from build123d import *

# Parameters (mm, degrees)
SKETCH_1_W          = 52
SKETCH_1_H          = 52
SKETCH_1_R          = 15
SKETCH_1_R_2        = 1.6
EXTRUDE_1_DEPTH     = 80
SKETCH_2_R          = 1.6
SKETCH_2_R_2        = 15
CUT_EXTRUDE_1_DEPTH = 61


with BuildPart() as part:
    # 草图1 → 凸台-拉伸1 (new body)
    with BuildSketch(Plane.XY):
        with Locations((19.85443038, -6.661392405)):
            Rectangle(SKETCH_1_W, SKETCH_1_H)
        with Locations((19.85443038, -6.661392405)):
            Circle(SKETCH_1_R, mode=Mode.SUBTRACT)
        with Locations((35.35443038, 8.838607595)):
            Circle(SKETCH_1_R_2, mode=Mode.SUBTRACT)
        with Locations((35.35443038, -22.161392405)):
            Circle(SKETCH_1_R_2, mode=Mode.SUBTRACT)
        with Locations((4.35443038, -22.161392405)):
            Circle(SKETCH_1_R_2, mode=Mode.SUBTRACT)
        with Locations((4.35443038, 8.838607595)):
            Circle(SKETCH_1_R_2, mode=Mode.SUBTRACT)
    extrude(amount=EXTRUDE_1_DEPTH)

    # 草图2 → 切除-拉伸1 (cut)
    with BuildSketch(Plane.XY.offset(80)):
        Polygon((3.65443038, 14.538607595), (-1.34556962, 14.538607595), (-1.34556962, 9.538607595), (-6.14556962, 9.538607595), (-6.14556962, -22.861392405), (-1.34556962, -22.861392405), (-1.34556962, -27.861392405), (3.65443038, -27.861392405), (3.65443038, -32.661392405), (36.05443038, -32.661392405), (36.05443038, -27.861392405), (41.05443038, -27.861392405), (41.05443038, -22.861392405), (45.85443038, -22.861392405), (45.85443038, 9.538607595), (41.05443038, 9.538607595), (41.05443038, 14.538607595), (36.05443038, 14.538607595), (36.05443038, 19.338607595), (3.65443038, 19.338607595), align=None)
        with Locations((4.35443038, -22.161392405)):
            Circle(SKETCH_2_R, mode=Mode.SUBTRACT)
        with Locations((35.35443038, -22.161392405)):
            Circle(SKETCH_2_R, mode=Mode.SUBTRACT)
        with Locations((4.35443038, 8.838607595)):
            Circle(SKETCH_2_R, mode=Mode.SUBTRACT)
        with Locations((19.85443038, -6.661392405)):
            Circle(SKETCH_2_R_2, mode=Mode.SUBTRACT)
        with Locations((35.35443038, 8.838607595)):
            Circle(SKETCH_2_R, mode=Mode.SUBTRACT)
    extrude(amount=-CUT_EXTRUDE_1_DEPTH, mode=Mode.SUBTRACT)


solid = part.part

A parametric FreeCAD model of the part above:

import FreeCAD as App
import Part
import Sketcher
from FreeCAD import Vector
Q = App.Units.Quantity

doc = App.newDocument("Part")
body = doc.addObject("PartDesign::Body", "Body")

# Sketch on XY plane
sketch1 = doc.addObject("Sketcher::SketchObject", "Sketch")
body.addObject(sketch1)
sketch1.AttachmentSupport = (doc.XY_Plane, [""])
sketch1.MapMode = "FlatFace"
sketch1.addGeometry([
    Part.LineSegment(Vector(-6.1, 19.3, 0), Vector(-6.1, -32.7, 0)),  # 0
    Part.LineSegment(Vector(-6.1, -32.7, 0), Vector(45.9, -32.7, 0)),  # 1
    Part.LineSegment(Vector(45.9, -32.7, 0), Vector(45.9, 19.3, 0)),  # 2
    Part.LineSegment(Vector(45.9, 19.3, 0), Vector(-6.1, 19.3, 0)),  # 3
    Part.Circle(Vector(4.4, -22.2, 0), Vector(0, 0, 1), 1.6),  # 4
    Part.Circle(Vector(35.4, -22.2, 0), Vector(0, 0, 1), 1.6),  # 5
    Part.Circle(Vector(4.4, 8.8, 0), Vector(0, 0, 1), 1.6),  # 6
    Part.Circle(Vector(19.9, -6.7, 0), Vector(0, 0, 1), 15),  # 7
    Part.Circle(Vector(35.4, 8.8, 0), Vector(0, 0, 1), 1.6),  # 8
], False)
sketch1.addConstraint([
    Sketcher.Constraint("Coincident", 0, 2, 1, 1),
    Sketcher.Constraint("Coincident", 1, 2, 2, 1),
    Sketcher.Constraint("Coincident", 2, 2, 3, 1),
    Sketcher.Constraint("Coincident", 3, 2, 0, 1),
    Sketcher.Constraint("Vertical", 0),
    Sketcher.Constraint("Horizontal", 1),
    Sketcher.Constraint("Vertical", 2),
    Sketcher.Constraint("Horizontal", 3),
    Sketcher.Constraint("Equal", 4, 5),
    Sketcher.Constraint("Equal", 5, 6),
    Sketcher.Constraint("Equal", 6, 8),
    Sketcher.Constraint("Horizontal", 4, 3, 5, 3),
    Sketcher.Constraint("Horizontal", 6, 3, 8, 3),
    Sketcher.Constraint("Vertical", 4, 3, 6, 3),
    Sketcher.Constraint("Vertical", 5, 3, 8, 3),
    Sketcher.Constraint("Equal", 3, 0),
    Sketcher.Constraint("Diameter", 7, Q("30 mm")),
    Sketcher.Constraint("Diameter", 4, Q("3.2 mm")),
    Sketcher.Constraint("DistanceX", 1, 1, 1, 2, Q("52 mm")),
    Sketcher.Constraint("DistanceX", 4, 3, 5, 3, Q("31 mm")),
    Sketcher.Constraint("DistanceY", 4, 3, 6, 3, Q("31 mm")),
    Sketcher.Constraint("DistanceX", 0, 2, 7, 3, Q("26 mm")),
    Sketcher.Constraint("DistanceY", 0, 2, 7, 3, Q("26 mm")),
    Sketcher.Constraint("DistanceX", 7, 3, 5, 3, Q("15.5 mm")),
    Sketcher.Constraint("DistanceY", 5, 3, 7, 3, Q("15.5 mm")),
    Sketcher.Constraint("DistanceX", -1, 1, 4, 3, Q("4.35443 mm")),
    Sketcher.Constraint("DistanceY", 4, 3, -1, 1, Q("22.161392 mm")),
])
pad1 = doc.addObject("PartDesign::Pad", "Pad")
body.addObject(pad1)
pad1.Profile = sketch1
pad1.Length = 80

# Sketch on XY plane
sketch2 = doc.addObject("Sketcher::SketchObject", "Sketch001")
body.addObject(sketch2)
sketch2.AttachmentSupport = (doc.XY_Plane, [""])
sketch2.MapMode = "FlatFace"
sketch2.AttachmentOffset = App.Placement(Vector(0, 0, 80), App.Rotation())
sketch2.addGeometry([
    Part.LineSegment(Vector(3.7, 14.5, 0), Vector(-1.3, 14.5, 0)),  # 0
    Part.LineSegment(Vector(-1.3, 14.5, 0), Vector(-1.3, 9.5, 0)),  # 1
    Part.LineSegment(Vector(-1.3, 9.5, 0), Vector(-6.1, 9.5, 0)),  # 2
    Part.LineSegment(Vector(-6.1, 9.5, 0), Vector(-6.1, -22.9, 0)),  # 3
    Part.LineSegment(Vector(-6.1, -22.9, 0), Vector(-1.3, -22.9, 0)),  # 4
    Part.LineSegment(Vector(-1.3, -22.9, 0), Vector(-1.3, -27.9, 0)),  # 5
    Part.LineSegment(Vector(-1.3, -27.9, 0), Vector(3.7, -27.9, 0)),  # 6
    Part.LineSegment(Vector(3.7, -27.9, 0), Vector(3.7, -32.7, 0)),  # 7
    Part.LineSegment(Vector(3.7, -32.7, 0), Vector(36.1, -32.7, 0)),  # 8
    Part.LineSegment(Vector(36.1, -32.7, 0), Vector(36.1, -27.9, 0)),  # 9
    Part.LineSegment(Vector(36.1, -27.9, 0), Vector(41.1, -27.9, 0)),  # 10
    Part.LineSegment(Vector(41.1, -27.9, 0), Vector(41.1, -22.9, 0)),  # 11
    Part.LineSegment(Vector(41.1, -22.9, 0), Vector(45.9, -22.9, 0)),  # 12
    Part.LineSegment(Vector(45.9, -22.9, 0), Vector(45.9, 9.5, 0)),  # 13
    Part.LineSegment(Vector(45.9, 9.5, 0), Vector(41.1, 9.5, 0)),  # 14
    Part.LineSegment(Vector(41.1, 9.5, 0), Vector(41.1, 14.5, 0)),  # 15
    Part.LineSegment(Vector(41.1, 14.5, 0), Vector(36.1, 14.5, 0)),  # 16
    Part.LineSegment(Vector(36.1, 14.5, 0), Vector(36.1, 19.3, 0)),  # 17
    Part.LineSegment(Vector(36.1, 19.3, 0), Vector(3.7, 19.3, 0)),  # 18
    Part.LineSegment(Vector(3.7, 19.3, 0), Vector(3.7, 14.5, 0)),  # 19
    Part.Circle(Vector(4.4, -22.2, 0), Vector(0, 0, 1), 1.6),  # 20
    Part.Circle(Vector(35.4, -22.2, 0), Vector(0, 0, 1), 1.6),  # 21
    Part.Circle(Vector(4.4, 8.8, 0), Vector(0, 0, 1), 1.6),  # 22
    Part.Circle(Vector(19.9, -6.7, 0), Vector(0, 0, 1), 15),  # 23
    Part.Circle(Vector(35.4, 8.8, 0), Vector(0, 0, 1), 1.6),  # 24
], False)
sketch2.addConstraint([
    Sketcher.Constraint("Coincident", 0, 2, 1, 1),
    Sketcher.Constraint("Coincident", 1, 2, 2, 1),
    Sketcher.Constraint("Coincident", 2, 2, 3, 1),
    Sketcher.Constraint("Coincident", 3, 2, 4, 1),
    Sketcher.Constraint("Coincident", 4, 2, 5, 1),
    Sketcher.Constraint("Coincident", 5, 2, 6, 1),
    Sketcher.Constraint("Coincident", 6, 2, 7, 1),
    Sketcher.Constraint("Coincident", 7, 2, 8, 1),
    Sketcher.Constraint("Coincident", 8, 2, 9, 1),
    Sketcher.Constraint("Coincident", 9, 2, 10, 1),
    Sketcher.Constraint("Coincident", 10, 2, 11, 1),
    Sketcher.Constraint("Coincident", 11, 2, 12, 1),
    Sketcher.Constraint("Coincident", 12, 2, 13, 1),
    Sketcher.Constraint("Coincident", 13, 2, 14, 1),
    Sketcher.Constraint("Coincident", 14, 2, 15, 1),
    Sketcher.Constraint("Coincident", 15, 2, 16, 1),
    Sketcher.Constraint("Coincident", 16, 2, 17, 1),
    Sketcher.Constraint("Coincident", 17, 2, 18, 1),
    Sketcher.Constraint("Coincident", 18, 2, 19, 1),
    Sketcher.Constraint("Coincident", 19, 2, 0, 1),
    Sketcher.Constraint("Horizontal", 0),
    Sketcher.Constraint("Vertical", 1),
    Sketcher.Constraint("Horizontal", 2),
    Sketcher.Constraint("Vertical", 3),
    Sketcher.Constraint("Horizontal", 4),
    Sketcher.Constraint("Vertical", 5),
    Sketcher.Constraint("Horizontal", 6),
    Sketcher.Constraint("Vertical", 7),
    Sketcher.Constraint("Horizontal", 8),
    Sketcher.Constraint("Vertical", 9),
    Sketcher.Constraint("Horizontal", 10),
    Sketcher.Constraint("Vertical", 11),
    Sketcher.Constraint("Horizontal", 12),
    Sketcher.Constraint("Vertical", 13),
    Sketcher.Constraint("Horizontal", 14),
    Sketcher.Constraint("Vertical", 15),
    Sketcher.Constraint("Horizontal", 16),
    Sketcher.Constraint("Vertical", 17),
    Sketcher.Constraint("Horizontal", 18),
    Sketcher.Constraint("Vertical", 19),
    Sketcher.Constraint("Equal", 20, 21),
    Sketcher.Constraint("Equal", 21, 22),
    Sketcher.Constraint("Equal", 22, 24),
    Sketcher.Constraint("Horizontal", 20, 3, 21, 3),
    Sketcher.Constraint("Horizontal", 22, 3, 24, 3),
    Sketcher.Constraint("Horizontal", 6, 2, 9, 2),
    Sketcher.Constraint("Horizontal", 4, 2, 11, 2),
    Sketcher.Constraint("Horizontal", 2, 2, 13, 2),
    Sketcher.Constraint("Horizontal", 0, 2, 15, 2),
    Sketcher.Constraint("Vertical", 20, 3, 22, 3),
    Sketcher.Constraint("Vertical", 21, 3, 24, 3),
    Sketcher.Constraint("Vertical", 1, 2, 4, 2),
    Sketcher.Constraint("Vertical", 11, 2, 14, 2),
    Sketcher.Constraint("Vertical", 9, 2, 16, 2),
    Sketcher.Constraint("Vertical", 7, 2, 18, 2),
    Sketcher.Constraint("Equal", 6, 10),
    Sketcher.Constraint("Equal", 4, 12),
    Sketcher.Constraint("Equal", 16, 1),
    Sketcher.Constraint("Equal", 18, 3),
    Sketcher.Constraint("Equal", 1, 5),
    Sketcher.Constraint("Equal", 14, 7),
    Sketcher.Constraint("Equal", 9, 17),
    Sketcher.Constraint("Diameter", 23, Q("30 mm")),
    Sketcher.Constraint("Diameter", 20, Q("3.2 mm")),
    Sketcher.Constraint("DistanceX", 0, 2, 0, 1, Q("5 mm")),
    Sketcher.Constraint("DistanceX", 2, 2, 2, 1, Q("4.8 mm")),
    Sketcher.Constraint("DistanceX", 8, 1, 8, 2, Q("32.4 mm")),
    Sketcher.Constraint("DistanceX", 20, 3, 21, 3, Q("31 mm")),
    Sketcher.Constraint("DistanceY", 20, 3, 22, 3, Q("31 mm")),
    Sketcher.Constraint("DistanceX", 2, 2, 23, 3, Q("26 mm")),
    Sketcher.Constraint("DistanceY", 8, 2, 23, 3, Q("26 mm")),
    Sketcher.Constraint("DistanceX", 23, 3, 21, 3, Q("15.5 mm")),
    Sketcher.Constraint("DistanceY", 21, 3, 23, 3, Q("15.5 mm")),
    Sketcher.Constraint("DistanceX", -1, 1, 20, 3, Q("4.35443 mm")),
    Sketcher.Constraint("DistanceY", 20, 3, -1, 1, Q("22.161392 mm")),
])
pocket1 = doc.addObject("PartDesign::Pocket", "Pocket")
body.addObject(pocket1)
pocket1.Profile = sketch2
pocket1.Length = 61

doc.recompute()
